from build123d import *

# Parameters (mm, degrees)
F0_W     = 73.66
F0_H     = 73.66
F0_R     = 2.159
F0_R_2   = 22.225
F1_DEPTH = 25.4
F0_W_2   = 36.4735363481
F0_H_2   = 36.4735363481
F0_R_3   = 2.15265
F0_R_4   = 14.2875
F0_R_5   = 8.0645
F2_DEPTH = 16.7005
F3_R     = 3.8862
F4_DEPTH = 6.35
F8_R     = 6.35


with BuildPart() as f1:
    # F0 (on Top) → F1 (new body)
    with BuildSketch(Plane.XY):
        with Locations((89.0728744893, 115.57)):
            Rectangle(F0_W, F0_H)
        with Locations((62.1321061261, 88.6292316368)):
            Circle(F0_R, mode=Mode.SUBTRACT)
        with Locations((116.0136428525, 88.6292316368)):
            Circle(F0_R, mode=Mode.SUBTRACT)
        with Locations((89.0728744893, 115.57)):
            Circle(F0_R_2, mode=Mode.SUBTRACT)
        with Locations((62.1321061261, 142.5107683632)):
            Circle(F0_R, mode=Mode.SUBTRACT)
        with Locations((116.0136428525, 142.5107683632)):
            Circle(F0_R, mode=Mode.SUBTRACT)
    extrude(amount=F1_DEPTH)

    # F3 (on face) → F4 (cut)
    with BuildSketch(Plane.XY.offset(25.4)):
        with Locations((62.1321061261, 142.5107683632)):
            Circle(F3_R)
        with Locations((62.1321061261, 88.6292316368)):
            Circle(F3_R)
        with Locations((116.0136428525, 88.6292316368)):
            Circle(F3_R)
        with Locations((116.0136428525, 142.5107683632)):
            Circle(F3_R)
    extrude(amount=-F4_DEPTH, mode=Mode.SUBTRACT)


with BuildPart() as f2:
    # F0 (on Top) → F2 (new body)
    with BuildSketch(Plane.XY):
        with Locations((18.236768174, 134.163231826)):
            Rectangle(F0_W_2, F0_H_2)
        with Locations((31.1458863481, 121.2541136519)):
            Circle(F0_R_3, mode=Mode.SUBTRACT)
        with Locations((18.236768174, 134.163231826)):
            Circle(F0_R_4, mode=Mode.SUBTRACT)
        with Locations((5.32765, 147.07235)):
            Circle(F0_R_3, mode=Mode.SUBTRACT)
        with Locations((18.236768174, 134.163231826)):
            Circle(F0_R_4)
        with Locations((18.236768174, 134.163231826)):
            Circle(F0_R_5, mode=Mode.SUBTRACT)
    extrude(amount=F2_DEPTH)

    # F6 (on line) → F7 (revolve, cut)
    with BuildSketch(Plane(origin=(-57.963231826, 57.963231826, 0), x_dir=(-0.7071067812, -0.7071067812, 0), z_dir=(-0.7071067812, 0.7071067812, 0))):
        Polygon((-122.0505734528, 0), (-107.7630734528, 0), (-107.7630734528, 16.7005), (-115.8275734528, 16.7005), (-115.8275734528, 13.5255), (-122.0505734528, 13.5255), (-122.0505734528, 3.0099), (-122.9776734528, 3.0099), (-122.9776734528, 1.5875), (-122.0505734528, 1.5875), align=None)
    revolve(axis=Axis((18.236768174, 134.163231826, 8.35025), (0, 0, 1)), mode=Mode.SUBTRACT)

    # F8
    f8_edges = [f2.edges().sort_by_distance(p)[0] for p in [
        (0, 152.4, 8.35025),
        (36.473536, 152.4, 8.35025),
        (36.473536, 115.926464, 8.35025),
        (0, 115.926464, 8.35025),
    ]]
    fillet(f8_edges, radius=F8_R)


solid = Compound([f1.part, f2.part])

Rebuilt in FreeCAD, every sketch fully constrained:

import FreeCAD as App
import Part
import Sketcher
Q = App.Units.Quantity


def edges_at(feature, points):
    """Names of the edges that pass closest to the given points."""
    edges = feature.Shape.Edges
    near = lambda p: min(range(len(edges)), key=lambda i: edges[i].distToShape(Part.Vertex(*p))[0])
    return sorted({f"Edge{near(p) + 1}" for p in points})

doc = App.newDocument("Part")
body = doc.addObject("PartDesign::Body", "Body")

# Sketch on XY plane
sketch1 = body.newObject("Sketcher::SketchObject", "Sketch")
sketch1.AttachmentSupport = (doc.getObject("XY_Plane"), [""])
sketch1.MapMode = "FlatFace"
sketch1.addGeometry([
    Part.LineSegment(App.Vector(52.242874, 152.4, 0), App.Vector(52.242874, 78.74, 0)),  # 0
    Part.LineSegment(App.Vector(52.242874, 78.74, 0), App.Vector(125.902874, 78.74, 0)),  # 1
    Part.LineSegment(App.Vector(125.902874, 78.74, 0), App.Vector(125.902874, 152.4, 0)),  # 2
    Part.LineSegment(App.Vector(125.902874, 152.4, 0), App.Vector(52.242874, 152.4, 0)),  # 3
    Part.Circle(App.Vector(62.132106, 88.629232, 0), App.Vector(0, 0, 1), 2.159),  # 4
    Part.Circle(App.Vector(116.013643, 88.629232, 0), App.Vector(0, 0, 1), 2.159),  # 5
    Part.Circle(App.Vector(62.132106, 142.510768, 0), App.Vector(0, 0, 1), 2.159),  # 6
    Part.Circle(App.Vector(89.072874, 115.57, 0), App.Vector(0, 0, 1), 22.225),  # 7
    Part.Circle(App.Vector(116.013643, 142.510768, 0), App.Vector(0, 0, 1), 2.159),  # 8
], False)
sketch1.addConstraint([
    Sketcher.Constraint("Coincident", 0, 2, 1, 1),
    Sketcher.Constraint("Coincident", 1, 2, 2, 1),
    Sketcher.Constraint("Coincident", 2, 2, 3, 1),
    Sketcher.Constraint("Coincident", 3, 2, 0, 1),
    Sketcher.Constraint("Vertical", 0),
    Sketcher.Constraint("Horizontal", 1),
    Sketcher.Constraint("Vertical", 2),
    Sketcher.Constraint("Horizontal", 3),
    Sketcher.Constraint("Equal", 4, 5),
    Sketcher.Constraint("Equal", 5, 6),
    Sketcher.Constraint("Equal", 6, 8),
    Sketcher.Constraint("Horizontal", 4, 3, 5, 3),
    Sketcher.Constraint("Horizontal", 6, 3, 8, 3),
    Sketcher.Constraint("Vertical", 4, 3, 6, 3),
    Sketcher.Constraint("Vertical", 5, 3, 8, 3),
    Sketcher.Constraint("Equal", 3, 0),
    Sketcher.Constraint("Diameter", 4, Q("0.17 in")),
    Sketcher.Constraint("Diameter", 7, Q("1.75 in")),
    Sketcher.Constraint("DistanceX", 1, 1, 1, 2, Q("2.9 in")),
    Sketcher.Constraint("DistanceY", -1, 1, 2, 2, Q("6 in")),
    Sketcher.Constraint("DistanceY", -1, 1, 7, 3, Q("4.55 in")),
    Sketcher.Constraint("DistanceX", 0, 2, 7, 3, Q("1.45 in")),
    Sketcher.Constraint("DistanceY", -1, 1, 4, 3, Q("88.629232 mm")),
    Sketcher.Constraint("DistanceY", -1, 1, 6, 3, Q("142.510768 mm")),
    Sketcher.Constraint("DistanceX", 4, 3, 7, 3, Q("26.940768 mm")),
    Sketcher.Constraint("DistanceX", 7, 3, 5, 3, Q("26.940768 mm")),
    Sketcher.Constraint("DistanceX", -1, 1, 4, 3, Q("62.132106 mm")),
])
pad1 = body.newObject("PartDesign::Pad", "Pad")
pad1.Profile = sketch1
pad1.Length = Q("1 in")

# Sketch on XY plane
sketch2 = body.newObject("Sketcher::SketchObject", "Sketch001")
sketch2.AttachmentSupport = (doc.getObject("XY_Plane"), [""])
sketch2.MapMode = "FlatFace"
sketch2.AttachmentOffset = App.Placement(App.Vector(0, 0, 1 * 25.4), App.Rotation())
sketch2.addGeometry([
    Part.Circle(App.Vector(62.132106, 142.510768, 0), App.Vector(0, 0, 1), 3.8862),
    Part.Circle(App.Vector(62.132106, 88.629232, 0), App.Vector(0, 0, 1), 3.8862),
    Part.Circle(App.Vector(116.013643, 88.629232, 0), App.Vector(0, 0, 1), 3.8862),
    Part.Circle(App.Vector(116.013643, 142.510768, 0), App.Vector(0, 0, 1), 3.8862),
], False)
sketch2.addConstraint([
    Sketcher.Constraint("Equal", 0, 1),
    Sketcher.Constraint("Equal", 1, 2),
    Sketcher.Constraint("Equal", 2, 3),
    Sketcher.Constraint("Horizontal", 1, 3, 2, 3),
    Sketcher.Constraint("Horizontal", 0, 3, 3, 3),
    Sketcher.Constraint("Vertical", 0, 3, 1, 3),
    Sketcher.Constraint("Vertical", 2, 3, 3, 3),
    Sketcher.Constraint("Diameter", 0, Q("0.306 in")),
    Sketcher.Constraint("DistanceY", -1, 1, 0, 3, Q("142.510768 mm")),
    Sketcher.Constraint("DistanceY", -1, 1, 1, 3, Q("88.629232 mm")),
    Sketcher.Constraint("DistanceX", -1, 1, 0, 3, Q("62.132106 mm")),
    Sketcher.Constraint("DistanceX", -1, 1, 2, 3, Q("116.013643 mm")),
])
pocket1 = body.newObject("PartDesign::Pocket", "Pocket")
pocket1.Profile = sketch2
pocket1.Length = Q("0.25 in")
body2 = doc.addObject("PartDesign::Body", "Body001")

# Sketch on XY plane
sketch3 = body2.newObject("Sketcher::SketchObject", "Sketch002")
sketch3.AttachmentSupport = (doc.getObject("XY_Plane001"), [""])
sketch3.MapMode = "FlatFace"
sketch3.addGeometry([
    Part.LineSegment(App.Vector(0, 152.4, 0), App.Vector(0, 115.926464, 0)),  # 0
    Part.LineSegment(App.Vector(0, 115.926464, 0), App.Vector(36.473536, 115.926464, 0)),  # 1
    Part.LineSegment(App.Vector(36.473536, 115.926464, 0), App.Vector(36.473536, 152.4, 0)),  # 2
    Part.LineSegment(App.Vector(36.473536, 152.4, 0), App.Vector(0, 152.4, 0)),  # 3
    Part.Circle(App.Vector(31.145886, 121.254114, 0), App.Vector(0, 0, 1), 2.15265),  # 4
    Part.Circle(App.Vector(18.236768, 134.163232, 0), App.Vector(0, 0, 1), 8.0645),  # 5
    Part.Circle(App.Vector(5.32765, 147.07235, 0), App.Vector(0, 0, 1), 2.15265),  # 6
], False)
sketch3.addConstraint([
    Sketcher.Constraint("Coincident", 0, 2, 1, 1),
    Sketcher.Constraint("Coincident", 1, 2, 2, 1),
    Sketcher.Constraint("Coincident", 2, 2, 3, 1),
    Sketcher.Constraint("Coincident", 3, 2, 0, 1),
    Sketcher.Constraint("Vertical", 0),
    Sketcher.Constraint("Horizontal", 1),
    Sketcher.Constraint("Vertical", 2),
    Sketcher.Constraint("Horizontal", 3),
    Sketcher.Constraint("Equal", 4, 6),
    Sketcher.Constraint("PointOnObject", 0, 2, -2),
    Sketcher.Constraint("Equal", 3, 0),
    Sketcher.Constraint("Diameter", 5, Q("0.635 in")),
    Sketcher.Constraint("DistanceY", -1, 1, 2, 2, Q("6 in")),
    Sketcher.Constraint("Diameter", 4, Q("0.1695 in")),
    Sketcher.Constraint("DistanceX", 1, 1, 1, 2, Q("36.473536 mm")),
    Sketcher.Constraint("DistanceX", -1, 1, 5, 3, Q("18.236768 mm")),
    Sketcher.Constraint("DistanceY", -1, 1, 5, 3, Q("134.163232 mm")),
    Sketcher.Constraint("DistanceX", -1, 1, 6, 3, Q("5.32765 mm")),
    Sketcher.Constraint("DistanceY", -1, 1, 6, 3, Q("147.07235 mm")),
    Sketcher.Constraint("DistanceX", 5, 3, 4, 3, Q("12.909118 mm")),
    Sketcher.Constraint("DistanceY", 4, 3, 5, 3, Q("12.909118 mm")),
])
pad2 = body2.newObject("PartDesign::Pad", "Pad001")
pad2.Profile = sketch3
pad2.Length = Q("0.6575 in")

# Sketch on an angled plane
sketch4 = body2.newObject("Sketcher::SketchObject", "Sketch003")
sketch4.Placement = App.Placement(App.Vector(-57.963232, 57.963232, 0), App.Rotation(App.Vector(-0.707106781, -0.707106781, 0), App.Vector(0, 0, 0.999999999), App.Vector(-0.707106781, 0.707106781, 0), "ZXY"))
sketch4.addGeometry([
    Part.LineSegment(App.Vector(-122.050573, 0, 0), App.Vector(-107.763073, 0, 0)),  # 0
    Part.LineSegment(App.Vector(-107.763073, 0, 0), App.Vector(-107.763073, 16.7005, 0)),  # 1
    Part.LineSegment(App.Vector(-107.763073, 16.7005, 0), App.Vector(-115.827573, 16.7005, 0)),  # 2
    Part.LineSegment(App.Vector(-115.827573, 16.7005, 0), App.Vector(-115.827573, 13.5255, 0)),  # 3
    Part.LineSegment(App.Vector(-115.827573, 13.5255, 0), App.Vector(-122.050573, 13.5255, 0)),  # 4
    Part.LineSegment(App.Vector(-122.050573, 13.5255, 0), App.Vector(-122.050573, 3.0099, 0)),  # 5
    Part.LineSegment(App.Vector(-122.050573, 3.0099, 0), App.Vector(-122.977673, 3.0099, 0)),  # 6
    Part.LineSegment(App.Vector(-122.977673, 3.0099, 0), App.Vector(-122.977673, 1.5875, 0)),  # 7
    Part.LineSegment(App.Vector(-122.977673, 1.5875, 0), App.Vector(-122.050573, 1.5875, 0)),  # 8
    Part.LineSegment(App.Vector(-122.050573, 1.5875, 0), App.Vector(-122.050573, 0, 0)),  # 9
], False)
sketch4.addGeometry(Part.LineSegment(App.Vector(-107.763073, 0, 0), App.Vector(-107.763073, 16.7005, 0)), True)  # axis
sketch4.addConstraint([
    Sketcher.Constraint("Coincident", 0, 2, 1, 1),
    Sketcher.Constraint("Coincident", 1, 2, 2, 1),
    Sketcher.Constraint("Coincident", 2, 2, 3, 1),
    Sketcher.Constraint("Coincident", 3, 2, 4, 1),
    Sketcher.Constraint("Coincident", 4, 2, 5, 1),
    Sketcher.Constraint("Coincident", 5, 2, 6, 1),
    Sketcher.Constraint("Coincident", 6, 2, 7, 1),
    Sketcher.Constraint("Coincident", 7, 2, 8, 1),
    Sketcher.Constraint("Coincident", 8, 2, 9, 1),
    Sketcher.Constraint("Coincident", 9, 2, 0, 1),
    Sketcher.Constraint("Horizontal", 0),
    Sketcher.Constraint("Vertical", 1),
    Sketcher.Constraint("Horizontal", 2),
    Sketcher.Constraint("Vertical", 3),
    Sketcher.Constraint("Horizontal", 4),
    Sketcher.Constraint("Vertical", 5),
    Sketcher.Constraint("Horizontal", 6),
    Sketcher.Constraint("Vertical", 7),
    Sketcher.Constraint("Horizontal", 8),
    Sketcher.Constraint("Vertical", 9),
    Sketcher.Constraint("Vertical", 10),
    Sketcher.Constraint("Coincident", 10, 1, 0, 2),
    Sketcher.Constraint("PointOnObject", 0, 2, -1),
    Sketcher.Constraint("Horizontal", 2, 2, 10, 2),
    Sketcher.Constraint("Vertical", 5, 2, 8, 2),
    Sketcher.Constraint("DistanceX", 0, 1, 0, 2, Q("0.5625 in")),
    Sketcher.Constraint("DistanceX", 4, 2, 4, 1, Q("0.245 in")),
    Sketcher.Constraint("DistanceY", 3, 2, 3, 1, Q("0.125 in")),
    Sketcher.Constraint("DistanceY", 5, 2, 5, 1, Q("0.414 in")),
    Sketcher.Constraint("DistanceY", 7, 2, 7, 1, Q("0.056 in")),
    Sketcher.Constraint("DistanceY", 9, 2, 9, 1, Q("0.0625 in")),
    Sketcher.Constraint("DistanceX", 6, 2, 6, 1, Q("0.0365 in")),
    Sketcher.Constraint("DistanceX", 0, 2, -1, 1, Q("107.763073 mm")),
])
groove = body2.newObject("PartDesign::Groove", "Groove")
groove.Profile = sketch4
groove.ReferenceAxis = (sketch4, ["Axis0"])
groove.Angle = 360
doc.recompute()

fillet = body2.newObject("PartDesign::Fillet", "Fillet")
fillet.Base = (groove, edges_at(groove, [
    (0, 152.4, 8.35),
    (36.474, 152.4, 8.35),
    (36.474, 115.926, 8.35),
    (0, 115.926, 8.35),
]))
fillet.Radius = Q("0.25 in")

doc.recompute()
